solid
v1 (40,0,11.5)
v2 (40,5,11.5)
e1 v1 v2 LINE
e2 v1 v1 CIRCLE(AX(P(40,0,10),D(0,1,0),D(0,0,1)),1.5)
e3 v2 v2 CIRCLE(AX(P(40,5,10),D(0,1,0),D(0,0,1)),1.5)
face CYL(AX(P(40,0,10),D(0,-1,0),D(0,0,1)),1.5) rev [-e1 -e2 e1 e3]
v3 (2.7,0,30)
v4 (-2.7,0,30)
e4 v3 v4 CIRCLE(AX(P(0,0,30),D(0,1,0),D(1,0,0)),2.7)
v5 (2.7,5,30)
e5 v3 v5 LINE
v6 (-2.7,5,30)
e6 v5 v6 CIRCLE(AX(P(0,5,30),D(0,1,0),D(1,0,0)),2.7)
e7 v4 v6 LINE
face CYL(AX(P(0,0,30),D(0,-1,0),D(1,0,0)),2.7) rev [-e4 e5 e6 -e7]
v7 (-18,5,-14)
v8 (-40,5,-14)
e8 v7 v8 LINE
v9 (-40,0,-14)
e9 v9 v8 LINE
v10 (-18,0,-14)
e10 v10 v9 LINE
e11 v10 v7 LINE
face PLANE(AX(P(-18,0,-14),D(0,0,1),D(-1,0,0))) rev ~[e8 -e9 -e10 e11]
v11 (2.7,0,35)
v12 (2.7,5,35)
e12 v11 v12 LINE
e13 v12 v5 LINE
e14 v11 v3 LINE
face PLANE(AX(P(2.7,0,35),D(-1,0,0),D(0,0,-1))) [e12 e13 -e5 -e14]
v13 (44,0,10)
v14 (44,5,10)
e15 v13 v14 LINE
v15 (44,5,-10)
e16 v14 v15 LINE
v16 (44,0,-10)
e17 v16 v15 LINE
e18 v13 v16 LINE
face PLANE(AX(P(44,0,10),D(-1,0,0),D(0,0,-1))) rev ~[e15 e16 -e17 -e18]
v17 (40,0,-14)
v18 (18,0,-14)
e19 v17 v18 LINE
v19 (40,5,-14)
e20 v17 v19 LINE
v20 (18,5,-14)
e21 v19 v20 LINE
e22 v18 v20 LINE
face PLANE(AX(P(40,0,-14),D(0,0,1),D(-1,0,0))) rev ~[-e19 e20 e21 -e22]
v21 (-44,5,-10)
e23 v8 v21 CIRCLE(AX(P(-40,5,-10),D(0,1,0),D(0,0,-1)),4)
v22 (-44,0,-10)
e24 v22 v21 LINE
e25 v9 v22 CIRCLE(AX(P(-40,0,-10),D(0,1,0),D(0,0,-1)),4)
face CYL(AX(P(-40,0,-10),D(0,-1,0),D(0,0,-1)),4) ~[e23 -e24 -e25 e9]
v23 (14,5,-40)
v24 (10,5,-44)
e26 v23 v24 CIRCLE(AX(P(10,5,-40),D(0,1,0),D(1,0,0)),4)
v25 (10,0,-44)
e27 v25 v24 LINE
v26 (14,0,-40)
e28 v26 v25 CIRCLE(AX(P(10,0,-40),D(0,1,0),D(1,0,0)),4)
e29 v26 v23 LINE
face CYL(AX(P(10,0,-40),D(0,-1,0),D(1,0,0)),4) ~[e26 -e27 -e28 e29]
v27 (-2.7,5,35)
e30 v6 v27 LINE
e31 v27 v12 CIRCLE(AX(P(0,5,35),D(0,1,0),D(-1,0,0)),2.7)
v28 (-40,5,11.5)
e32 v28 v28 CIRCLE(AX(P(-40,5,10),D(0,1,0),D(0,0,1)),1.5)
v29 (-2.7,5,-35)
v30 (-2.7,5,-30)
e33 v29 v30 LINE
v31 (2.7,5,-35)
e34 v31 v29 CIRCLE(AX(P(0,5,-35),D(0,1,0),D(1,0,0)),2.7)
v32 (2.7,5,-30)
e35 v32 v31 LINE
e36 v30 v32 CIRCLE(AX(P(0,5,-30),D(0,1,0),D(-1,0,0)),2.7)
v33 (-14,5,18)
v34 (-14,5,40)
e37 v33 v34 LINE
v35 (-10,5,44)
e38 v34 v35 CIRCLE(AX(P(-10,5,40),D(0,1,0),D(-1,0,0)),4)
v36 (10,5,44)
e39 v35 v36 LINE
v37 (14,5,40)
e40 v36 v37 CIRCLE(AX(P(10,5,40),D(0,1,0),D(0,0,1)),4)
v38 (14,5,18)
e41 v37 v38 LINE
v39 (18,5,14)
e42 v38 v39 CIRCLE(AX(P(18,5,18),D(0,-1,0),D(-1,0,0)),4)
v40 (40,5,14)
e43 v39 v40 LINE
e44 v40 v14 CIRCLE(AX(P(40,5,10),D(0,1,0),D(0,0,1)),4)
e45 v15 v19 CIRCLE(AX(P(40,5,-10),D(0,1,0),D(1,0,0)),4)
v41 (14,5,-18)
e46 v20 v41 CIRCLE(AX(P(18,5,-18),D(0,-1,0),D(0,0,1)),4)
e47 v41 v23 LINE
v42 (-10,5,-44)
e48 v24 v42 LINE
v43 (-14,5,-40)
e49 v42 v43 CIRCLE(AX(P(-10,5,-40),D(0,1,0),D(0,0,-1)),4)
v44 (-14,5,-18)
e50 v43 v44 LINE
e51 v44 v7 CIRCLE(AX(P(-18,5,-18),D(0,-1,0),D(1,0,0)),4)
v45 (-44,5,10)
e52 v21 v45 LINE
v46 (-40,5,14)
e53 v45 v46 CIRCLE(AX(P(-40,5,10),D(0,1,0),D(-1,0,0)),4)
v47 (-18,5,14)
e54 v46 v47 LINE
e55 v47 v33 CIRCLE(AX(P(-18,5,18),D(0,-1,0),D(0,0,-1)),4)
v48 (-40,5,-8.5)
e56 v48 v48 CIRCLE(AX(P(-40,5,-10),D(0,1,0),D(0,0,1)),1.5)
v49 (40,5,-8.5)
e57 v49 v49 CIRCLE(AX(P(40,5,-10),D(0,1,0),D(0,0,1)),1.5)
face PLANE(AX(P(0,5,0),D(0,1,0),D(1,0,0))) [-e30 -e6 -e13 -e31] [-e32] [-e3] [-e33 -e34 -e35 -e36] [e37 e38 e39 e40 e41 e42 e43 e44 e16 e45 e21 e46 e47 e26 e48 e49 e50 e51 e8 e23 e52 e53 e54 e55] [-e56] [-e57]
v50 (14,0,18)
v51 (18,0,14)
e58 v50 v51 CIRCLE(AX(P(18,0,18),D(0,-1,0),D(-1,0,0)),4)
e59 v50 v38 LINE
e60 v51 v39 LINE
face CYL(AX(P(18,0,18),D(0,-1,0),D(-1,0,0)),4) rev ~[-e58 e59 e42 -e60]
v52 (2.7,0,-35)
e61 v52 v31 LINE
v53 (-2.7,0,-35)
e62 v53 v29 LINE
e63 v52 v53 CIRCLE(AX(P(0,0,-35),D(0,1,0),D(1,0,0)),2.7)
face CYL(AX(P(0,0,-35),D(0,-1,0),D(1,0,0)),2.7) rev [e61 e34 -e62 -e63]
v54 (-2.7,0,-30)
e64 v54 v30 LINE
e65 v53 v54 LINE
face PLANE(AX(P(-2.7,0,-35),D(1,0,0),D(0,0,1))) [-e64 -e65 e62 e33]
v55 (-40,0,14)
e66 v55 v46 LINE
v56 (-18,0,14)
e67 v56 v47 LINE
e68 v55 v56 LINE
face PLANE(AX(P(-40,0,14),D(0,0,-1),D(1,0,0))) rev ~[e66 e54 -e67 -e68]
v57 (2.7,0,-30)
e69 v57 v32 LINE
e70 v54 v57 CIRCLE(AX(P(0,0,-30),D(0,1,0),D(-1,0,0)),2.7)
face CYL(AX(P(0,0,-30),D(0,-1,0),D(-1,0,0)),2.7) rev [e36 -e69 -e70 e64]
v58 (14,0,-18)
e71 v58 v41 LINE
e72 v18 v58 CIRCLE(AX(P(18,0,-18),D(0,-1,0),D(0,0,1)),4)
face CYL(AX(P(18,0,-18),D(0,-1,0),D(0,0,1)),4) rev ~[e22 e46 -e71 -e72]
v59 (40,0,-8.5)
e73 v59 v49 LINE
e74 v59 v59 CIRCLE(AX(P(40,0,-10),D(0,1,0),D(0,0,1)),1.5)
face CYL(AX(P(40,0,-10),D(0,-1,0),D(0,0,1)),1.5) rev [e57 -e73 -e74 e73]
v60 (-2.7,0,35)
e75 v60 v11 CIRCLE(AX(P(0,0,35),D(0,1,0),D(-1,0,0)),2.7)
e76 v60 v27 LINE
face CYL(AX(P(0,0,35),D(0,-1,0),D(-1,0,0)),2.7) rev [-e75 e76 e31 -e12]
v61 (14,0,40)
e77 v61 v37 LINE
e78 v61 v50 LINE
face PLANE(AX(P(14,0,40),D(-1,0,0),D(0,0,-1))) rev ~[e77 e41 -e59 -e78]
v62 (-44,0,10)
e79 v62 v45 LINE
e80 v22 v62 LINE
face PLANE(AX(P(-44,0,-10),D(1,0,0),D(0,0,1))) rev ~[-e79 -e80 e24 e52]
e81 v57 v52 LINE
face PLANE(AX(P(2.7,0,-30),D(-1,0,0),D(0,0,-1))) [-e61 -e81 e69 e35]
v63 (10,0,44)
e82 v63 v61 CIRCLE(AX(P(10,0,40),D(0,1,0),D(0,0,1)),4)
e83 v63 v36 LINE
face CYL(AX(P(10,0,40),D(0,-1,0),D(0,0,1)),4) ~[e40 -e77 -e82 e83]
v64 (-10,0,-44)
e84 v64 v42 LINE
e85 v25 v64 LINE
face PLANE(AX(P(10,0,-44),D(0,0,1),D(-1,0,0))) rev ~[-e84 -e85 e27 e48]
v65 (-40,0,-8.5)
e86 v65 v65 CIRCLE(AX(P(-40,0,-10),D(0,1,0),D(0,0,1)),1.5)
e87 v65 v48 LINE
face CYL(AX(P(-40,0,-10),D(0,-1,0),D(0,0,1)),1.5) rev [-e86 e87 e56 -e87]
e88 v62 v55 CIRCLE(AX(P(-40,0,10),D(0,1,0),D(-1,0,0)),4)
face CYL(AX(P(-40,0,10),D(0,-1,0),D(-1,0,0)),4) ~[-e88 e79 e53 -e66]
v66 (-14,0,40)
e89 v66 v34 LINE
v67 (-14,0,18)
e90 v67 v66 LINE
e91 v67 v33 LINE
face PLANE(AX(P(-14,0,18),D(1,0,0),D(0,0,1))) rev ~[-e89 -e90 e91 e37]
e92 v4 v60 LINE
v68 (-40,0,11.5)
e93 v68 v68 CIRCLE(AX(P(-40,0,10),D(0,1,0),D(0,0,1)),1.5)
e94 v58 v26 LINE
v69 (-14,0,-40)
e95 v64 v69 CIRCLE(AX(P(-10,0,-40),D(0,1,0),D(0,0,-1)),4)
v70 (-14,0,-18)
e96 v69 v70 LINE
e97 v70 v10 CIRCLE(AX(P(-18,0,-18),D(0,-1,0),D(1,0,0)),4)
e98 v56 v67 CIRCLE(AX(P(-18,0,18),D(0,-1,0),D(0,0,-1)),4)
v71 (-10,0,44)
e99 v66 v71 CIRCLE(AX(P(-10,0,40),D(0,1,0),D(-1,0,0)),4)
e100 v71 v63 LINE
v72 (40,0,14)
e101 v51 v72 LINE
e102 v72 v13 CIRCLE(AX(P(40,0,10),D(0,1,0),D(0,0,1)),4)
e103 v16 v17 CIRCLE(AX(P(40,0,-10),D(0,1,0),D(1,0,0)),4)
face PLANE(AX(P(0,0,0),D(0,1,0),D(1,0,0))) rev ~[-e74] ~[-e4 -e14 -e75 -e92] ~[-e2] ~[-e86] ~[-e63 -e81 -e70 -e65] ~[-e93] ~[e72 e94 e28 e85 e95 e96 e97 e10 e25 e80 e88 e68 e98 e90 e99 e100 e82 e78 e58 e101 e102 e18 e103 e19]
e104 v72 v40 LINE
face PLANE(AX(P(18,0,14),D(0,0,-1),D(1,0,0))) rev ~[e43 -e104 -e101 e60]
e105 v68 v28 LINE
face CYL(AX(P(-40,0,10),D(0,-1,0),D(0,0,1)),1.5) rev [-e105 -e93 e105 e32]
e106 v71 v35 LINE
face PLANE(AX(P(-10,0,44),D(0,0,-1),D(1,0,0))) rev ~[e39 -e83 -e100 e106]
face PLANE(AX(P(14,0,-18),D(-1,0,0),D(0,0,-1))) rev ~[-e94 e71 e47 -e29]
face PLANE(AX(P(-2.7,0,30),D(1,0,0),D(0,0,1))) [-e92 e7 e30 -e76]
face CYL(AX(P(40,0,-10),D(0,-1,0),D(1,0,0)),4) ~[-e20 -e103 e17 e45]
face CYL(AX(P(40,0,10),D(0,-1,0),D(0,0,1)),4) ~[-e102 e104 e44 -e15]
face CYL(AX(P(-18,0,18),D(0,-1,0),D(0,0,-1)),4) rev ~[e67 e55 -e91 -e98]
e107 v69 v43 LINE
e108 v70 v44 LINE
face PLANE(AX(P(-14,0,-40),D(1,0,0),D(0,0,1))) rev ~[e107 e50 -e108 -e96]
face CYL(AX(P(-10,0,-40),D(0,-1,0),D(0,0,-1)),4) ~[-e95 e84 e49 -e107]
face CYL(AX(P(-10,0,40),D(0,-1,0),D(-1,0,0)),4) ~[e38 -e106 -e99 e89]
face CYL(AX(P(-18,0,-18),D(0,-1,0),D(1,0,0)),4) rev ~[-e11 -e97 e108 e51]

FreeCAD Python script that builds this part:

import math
import FreeCAD as App
import Part
import Sketcher
Q = App.Units.Quantity

doc = App.newDocument("Part")
body = doc.addObject("PartDesign::Body", "Body")

sketch1 = doc.addObject("Sketcher::SketchObject", "Sketch")
body.addObject(sketch1)
sketch1.AttachmentSupport = (doc.XZ_Plane, [""])
sketch1.MapMode = "FlatFace"
sketch1.addGeometry([
    Part.LineSegment(App.Vector(14, 40, 0), App.Vector(14, 18, 0)),
    Part.ArcOfCircle(Part.Circle(App.Vector(18, 18, 0), App.Vector(0, 0, 1), 4), math.radians(180), math.radians(270)),
    Part.LineSegment(App.Vector(18, 14, 0), App.Vector(40, 14, 0)),
    Part.ArcOfCircle(Part.Circle(App.Vector(40, 10, 0), App.Vector(0, 0, 1), 4), math.radians(0), math.radians(90)),
    Part.LineSegment(App.Vector(44, 10, 0), App.Vector(44, -10, 0)),
    Part.ArcOfCircle(Part.Circle(App.Vector(40, -10, 0), App.Vector(0, 0, 1), 4), math.radians(-90), math.radians(0)),
    Part.LineSegment(App.Vector(40, -14, 0), App.Vector(18, -14, 0)),
    Part.ArcOfCircle(Part.Circle(App.Vector(18, -18, 0), App.Vector(0, 0, 1), 4), math.radians(90), math.radians(180)),
    Part.LineSegment(App.Vector(14, -18, 0), App.Vector(14, -40, 0)),
    Part.ArcOfCircle(Part.Circle(App.Vector(10, -40, 0), App.Vector(0, 0, 1), 4), math.radians(-90), math.radians(0)),
    Part.LineSegment(App.Vector(10, -44, 0), App.Vector(-10, -44, 0)),
    Part.ArcOfCircle(Part.Circle(App.Vector(-10, -40, 0), App.Vector(0, 0, 1), 4), math.radians(180), math.radians(270)),
    Part.LineSegment(App.Vector(-14, -40, 0), App.Vector(-14, -18, 0)),
    Part.ArcOfCircle(Part.Circle(App.Vector(-18, -18, 0), App.Vector(0, 0, 1), 4), math.radians(0), math.radians(90)),
    Part.LineSegment(App.Vector(-18, -14, 0), App.Vector(-40, -14, 0)),
    Part.ArcOfCircle(Part.Circle(App.Vector(-40, -10, 0), App.Vector(0, 0, 1), 4), math.radians(180), math.radians(270)),
    Part.LineSegment(App.Vector(-44, -10, 0), App.Vector(-44, 10, 0)),
    Part.ArcOfCircle(Part.Circle(App.Vector(-40, 10, 0), App.Vector(0, 0, 1), 4), math.radians(90), math.radians(180)),
    Part.LineSegment(App.Vector(-40, 14, 0), App.Vector(-18, 14, 0)),
    Part.ArcOfCircle(Part.Circle(App.Vector(-18, 18, 0), App.Vector(0, 0, 1), 4), math.radians(-90), math.radians(0)),
    Part.LineSegment(App.Vector(-14, 18, 0), App.Vector(-14, 40, 0)),
    Part.ArcOfCircle(Part.Circle(App.Vector(-10, 40, 0), App.Vector(0, 0, 1), 4), math.radians(90), math.radians(180)),
    Part.LineSegment(App.Vector(-10, 44, 0), App.Vector(10, 44, 0)),
    Part.ArcOfCircle(Part.Circle(App.Vector(10, 40, 0), App.Vector(0, 0, 1), 4), math.radians(0), math.radians(90)),
    Part.Circle(App.Vector(-40, 10, 0), App.Vector(0, 0, 1), 1.5),
    Part.ArcOfCircle(Part.Circle(App.Vector(0, 30, 0), App.Vector(0, 0, 1), 2.7), math.radians(180), math.radians(360)),
    Part.LineSegment(App.Vector(2.7, 30, 0), App.Vector(2.7, 35, 0)),
    Part.ArcOfCircle(Part.Circle(App.Vector(0, 35, 0), App.Vector(0, 0, 1), 2.7), math.radians(0), math.radians(180)),
    Part.LineSegment(App.Vector(-2.7, 35, 0), App.Vector(-2.7, 30, 0)),
    Part.Circle(App.Vector(40, 10, 0), App.Vector(0, 0, 1), 1.5),
    Part.Circle(App.Vector(-40, -10, 0), App.Vector(0, 0, 1), 1.5),
    Part.Circle(App.Vector(40, -10, 0), App.Vector(0, 0, 1), 1.5),
    Part.ArcOfCircle(Part.Circle(App.Vector(0, -30, 0), App.Vector(0, 0, 1), 2.7), math.radians(0), math.radians(180)),
    Part.LineSegment(App.Vector(-2.7, -30, 0), App.Vector(-2.7, -35, 0)),
    Part.ArcOfCircle(Part.Circle(App.Vector(0, -35, 0), App.Vector(0, 0, 1), 2.7), math.radians(180), math.radians(360)),
    Part.LineSegment(App.Vector(2.7, -35, 0), App.Vector(2.7, -30, 0)),
], False)
sketch1.addConstraint([
    Sketcher.Constraint("Tangent", 0, 2, 1, 1),
    Sketcher.Constraint("Tangent", 1, 2, 2, 1),
    Sketcher.Constraint("Tangent", 2, 2, 3, 2),
    Sketcher.Constraint("Tangent", 3, 1, 4, 1),
    Sketcher.Constraint("Tangent", 4, 2, 5, 2),
    Sketcher.Constraint("Tangent", 5, 1, 6, 1),
    Sketcher.Constraint("Tangent", 6, 2, 7, 1),
    Sketcher.Constraint("Tangent", 7, 2, 8, 1),
    Sketcher.Constraint("Tangent", 8, 2, 9, 2),
    Sketcher.Constraint("Tangent", 9, 1, 10, 1),
    Sketcher.Constraint("Tangent", 10, 2, 11, 2),
    Sketcher.Constraint("Tangent", 11, 1, 12, 1),
    Sketcher.Constraint("Tangent", 12, 2, 13, 1),
    Sketcher.Constraint("Tangent", 13, 2, 14, 1),
    Sketcher.Constraint("Tangent", 14, 2, 15, 2),
    Sketcher.Constraint("Tangent", 15, 1, 16, 1),
    Sketcher.Constraint("Tangent", 16, 2, 17, 2),
    Sketcher.Constraint("Tangent", 17, 1, 18, 1),
    Sketcher.Constraint("Tangent", 18, 2, 19, 1),
    Sketcher.Constraint("Tangent", 19, 2, 20, 1),
    Sketcher.Constraint("Tangent", 20, 2, 21, 2),
    Sketcher.Constraint("Tangent", 21, 1, 22, 1),
    Sketcher.Constraint("Tangent", 22, 2, 23, 2),
    Sketcher.Constraint("Tangent", 23, 1, 0, 1),
    Sketcher.Constraint("Tangent", 25, 2, 26, 1),
    Sketcher.Constraint("Tangent", 26, 2, 27, 1),
    Sketcher.Constraint("Tangent", 27, 2, 28, 1),
    Sketcher.Constraint("Tangent", 28, 2, 25, 1),
    Sketcher.Constraint("Tangent", 32, 2, 33, 1),
    Sketcher.Constraint("Tangent", 33, 2, 34, 1),
    Sketcher.Constraint("Tangent", 34, 2, 35, 1),
    Sketcher.Constraint("Tangent", 35, 2, 32, 1),
    Sketcher.Constraint("Vertical", 0),
    Sketcher.Constraint("Horizontal", 2),
    Sketcher.Constraint("Vertical", 4),
    Sketcher.Constraint("Horizontal", 6),
    Sketcher.Constraint("Vertical", 8),
    Sketcher.Constraint("Horizontal", 10),
    Sketcher.Constraint("Vertical", 12),
    Sketcher.Constraint("Horizontal", 14),
    Sketcher.Constraint("Vertical", 16),
    Sketcher.Constraint("Horizontal", 18),
    Sketcher.Constraint("Vertical", 20),
    Sketcher.Constraint("Horizontal", 22),
    Sketcher.Constraint("Vertical", 26),
    Sketcher.Constraint("Vertical", 28),
    Sketcher.Constraint("Vertical", 33),
    Sketcher.Constraint("Vertical", 35),
    Sketcher.Constraint("Coincident", 24, 3, 17, 3),
    Sketcher.Constraint("Coincident", 29, 3, 3, 3),
    Sketcher.Constraint("Coincident", 30, 3, 15, 3),
    Sketcher.Constraint("Coincident", 31, 3, 5, 3),
    Sketcher.Constraint("Equal", 1, 3),
    Sketcher.Constraint("Equal", 3, 5),
    Sketcher.Constraint("Equal", 5, 7),
    Sketcher.Constraint("Equal", 7, 9),
    Sketcher.Constraint("Equal", 9, 11),
    Sketcher.Constraint("Equal", 11, 13),
    Sketcher.Constraint("Equal", 13, 15),
    Sketcher.Constraint("Equal", 15, 17),
    Sketcher.Constraint("Equal", 17, 19),
    Sketcher.Constraint("Equal", 19, 21),
    Sketcher.Constraint("Equal", 21, 23),
    Sketcher.Constraint("Equal", 24, 29),
    Sketcher.Constraint("Equal", 29, 30),
    Sketcher.Constraint("Equal", 30, 31),
    Sketcher.Constraint("Equal", 27, 32),
    Sketcher.Constraint("Symmetric", 1, 3, 13, 3, -1, 1),
    Sketcher.Constraint("Symmetric", 5, 3, 17, 3, -1, 1),
    Sketcher.Constraint("Symmetric", 9, 3, 21, 3, -1, 1),
    Sketcher.Constraint("Symmetric", 25, 3, 32, 3, -1, 1),
    Sketcher.Constraint("Symmetric", 7, 3, 13, 3, -2),
    Sketcher.Constraint("Symmetric", 27, 3, 34, 3, -1),
    Sketcher.Constraint("Equal", 18, 0),
    Sketcher.Constraint("Equal", 22, 4),
    Sketcher.Constraint("Diameter", 24, Q("3 mm")),
    Sketcher.Constraint("Radius", 1, Q("4 mm")),
    Sketcher.Constraint("Radius", 25, Q("2.7 mm")),
    Sketcher.Constraint("DistanceX", 2, 1, 2, 2, Q("22 mm")),
    Sketcher.Constraint("DistanceX", 10, 2, 10, 1, Q("20 mm")),
    Sketcher.Constraint("DistanceY", 26, 1, 26, 2, Q("5 mm")),
    Sketcher.Constraint("DistanceY", -1, 1, 25, 3, Q("30 mm")),
])
pad1 = doc.addObject("PartDesign::Pad", "Pad")
body.addObject(pad1)
pad1.Profile = sketch1
pad1.Length = 5
pad1.Reversed = True

doc.recompute()
